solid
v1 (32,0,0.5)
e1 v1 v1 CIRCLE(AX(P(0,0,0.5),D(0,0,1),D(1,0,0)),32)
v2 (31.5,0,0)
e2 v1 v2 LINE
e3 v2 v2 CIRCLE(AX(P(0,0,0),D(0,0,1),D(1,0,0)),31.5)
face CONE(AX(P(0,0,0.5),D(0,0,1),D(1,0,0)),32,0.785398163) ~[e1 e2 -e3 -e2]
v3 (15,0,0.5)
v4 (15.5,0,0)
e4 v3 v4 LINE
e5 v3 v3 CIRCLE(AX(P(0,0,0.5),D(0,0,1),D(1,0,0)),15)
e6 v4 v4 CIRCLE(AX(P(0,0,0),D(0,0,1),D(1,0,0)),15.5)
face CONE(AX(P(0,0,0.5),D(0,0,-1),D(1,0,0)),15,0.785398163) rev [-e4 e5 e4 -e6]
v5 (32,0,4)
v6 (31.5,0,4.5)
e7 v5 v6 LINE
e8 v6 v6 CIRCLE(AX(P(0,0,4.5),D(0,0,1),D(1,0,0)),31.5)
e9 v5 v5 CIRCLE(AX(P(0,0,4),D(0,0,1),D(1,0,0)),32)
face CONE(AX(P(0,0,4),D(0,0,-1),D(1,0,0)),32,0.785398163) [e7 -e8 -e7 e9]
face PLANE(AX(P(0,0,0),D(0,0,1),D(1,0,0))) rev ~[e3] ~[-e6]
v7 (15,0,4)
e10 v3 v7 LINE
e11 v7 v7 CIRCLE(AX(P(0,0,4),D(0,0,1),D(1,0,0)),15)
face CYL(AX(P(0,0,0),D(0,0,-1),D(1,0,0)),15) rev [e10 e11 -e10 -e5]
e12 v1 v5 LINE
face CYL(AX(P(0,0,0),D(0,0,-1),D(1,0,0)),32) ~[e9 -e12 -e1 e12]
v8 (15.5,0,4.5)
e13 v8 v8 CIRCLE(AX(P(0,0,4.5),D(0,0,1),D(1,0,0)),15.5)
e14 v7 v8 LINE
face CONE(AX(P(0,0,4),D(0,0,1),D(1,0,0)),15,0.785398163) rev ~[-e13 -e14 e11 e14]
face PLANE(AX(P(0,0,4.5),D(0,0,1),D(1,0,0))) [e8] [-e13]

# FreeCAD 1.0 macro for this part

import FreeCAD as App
import Part
import Sketcher

V = App.Vector
Q = App.Units.Quantity


def edges_at(feature, points):
    """Names of the edges that pass closest to the given points."""
    edges = feature.Shape.Edges
    near = lambda p: min(range(len(edges)), key=lambda i: edges[i].distToShape(Part.Vertex(*p))[0])
    return sorted({f"Edge{near(p) + 1}" for p in points})

doc = App.newDocument("Part")
params = doc.addObject("Spreadsheet::Sheet", "Params")
for row, (alias, value) in enumerate([
    ("sketch1_diameter", "64 mm"),
    ("sketch1_diameter2", "30 mm"),
    ("pad1_length", "4.5 mm"),
    ("chamfer_size", "0.5 mm"),
], start=1):
    params.set(f"A{row}", alias)
    params.set(f"B{row}", "=" + value)
    params.setAlias(f"B{row}", alias)

body = doc.addObject("PartDesign::Body", "Body")

sketch1 = doc.addObject("Sketcher::SketchObject", "Sketch")
body.addObject(sketch1)
sketch1.AttachmentSupport = (doc.XY_Plane, [""])
sketch1.MapMode = "FlatFace"
sketch1.addGeometry([
    Part.Circle(V(0, 0, 0), V(0, 0, 1), 32),
    Part.Circle(V(0, 0, 0), V(0, 0, 1), 15),
], False)
sketch1.addConstraint([
    Sketcher.Constraint("Coincident", 0, 3, -1, 1),
    Sketcher.Constraint("Coincident", 1, 3, -1, 1),
    Sketcher.Constraint("Diameter", 0, Q("64 mm")),
    Sketcher.Constraint("Diameter", 1, Q("30 mm")),
])
sketch1.setExpression("Constraints[2]", "Params.sketch1_diameter")
sketch1.setExpression("Constraints[3]", "Params.sketch1_diameter2")
pad1 = doc.addObject("PartDesign::Pad", "Pad")
body.addObject(pad1)
pad1.Profile = sketch1
pad1.setExpression("Length", "Params.pad1_length")
doc.recompute()

chamfer = doc.addObject("PartDesign::Chamfer", "Chamfer")
body.addObject(chamfer)
chamfer.Base = (pad1, edges_at(pad1, [
    (-15, 0, 4.5),
    (-15, 0, 0),
    (-32, 0, 4.5),
    (-32, 0, 0),
]))
chamfer.setExpression("Size", "Params.chamfer_size")

doc.recompute()
